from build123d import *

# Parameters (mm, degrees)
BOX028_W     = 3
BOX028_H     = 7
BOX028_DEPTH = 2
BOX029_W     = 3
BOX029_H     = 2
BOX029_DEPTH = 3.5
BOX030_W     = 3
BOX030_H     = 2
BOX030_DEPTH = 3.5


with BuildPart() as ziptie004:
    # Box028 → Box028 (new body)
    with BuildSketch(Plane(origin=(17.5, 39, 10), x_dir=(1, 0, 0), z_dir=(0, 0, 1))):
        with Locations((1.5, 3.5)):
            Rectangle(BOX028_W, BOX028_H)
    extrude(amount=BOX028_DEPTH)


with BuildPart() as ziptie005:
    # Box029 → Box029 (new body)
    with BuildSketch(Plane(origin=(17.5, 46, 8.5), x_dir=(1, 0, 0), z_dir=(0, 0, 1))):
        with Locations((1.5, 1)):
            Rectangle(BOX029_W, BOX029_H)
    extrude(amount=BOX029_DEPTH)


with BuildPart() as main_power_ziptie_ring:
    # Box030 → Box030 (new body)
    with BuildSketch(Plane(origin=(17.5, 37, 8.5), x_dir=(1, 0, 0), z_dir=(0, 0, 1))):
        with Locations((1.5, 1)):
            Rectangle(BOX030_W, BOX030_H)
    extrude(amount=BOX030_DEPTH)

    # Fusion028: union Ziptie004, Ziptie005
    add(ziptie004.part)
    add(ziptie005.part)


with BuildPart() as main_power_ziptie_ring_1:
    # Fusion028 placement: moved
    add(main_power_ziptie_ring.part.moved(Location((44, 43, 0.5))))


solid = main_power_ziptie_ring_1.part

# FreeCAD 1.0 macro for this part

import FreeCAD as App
import Part
import Sketcher

V = App.Vector
Q = App.Units.Quantity


def add_polygon(sketch, points):
    """Adds a closed chain of lines whose ends are joined by coincident constraints."""
    first, n = sketch.GeometryCount, len(points)
    for a, b in zip(points, points[1:] + points[:1]):
        sketch.addGeometry(Part.LineSegment(App.Vector(*a, 0), App.Vector(*b, 0)), False)
    for i in range(n):
        sketch.addConstraint(Sketcher.Constraint("Coincident", first + i, 2, first + (i + 1) % n, 1))

doc = App.newDocument("Part")
params = doc.addObject("Spreadsheet::Sheet", "Params")
for row, (alias, value) in enumerate([
    ("sketch1_width", "3 mm"),
    ("sketch1_height", "7 mm"),
    ("pad1_length", "2 mm"),
    ("sketch2_width", "3 mm"),
    ("sketch2_height", "2 mm"),
    ("pad2_length", "3.5 mm"),
    ("sketch3_width", "3 mm"),
    ("sketch3_height", "2 mm"),
    ("pad3_length", "3.5 mm"),
], start=1):
    params.set(f"A{row}", alias)
    params.set(f"B{row}", "=" + value)
    params.setAlias(f"B{row}", alias)

body = doc.addObject("PartDesign::Body", "Body")

# Sketch on XY plane
sketch1 = doc.addObject("Sketcher::SketchObject", "Sketch")
body.addObject(sketch1)
sketch1.AttachmentSupport = (doc.XY_Plane, [""])
sketch1.MapMode = "FlatFace"
sketch1.AttachmentOffset = App.Placement(V(0, 0, 10), App.Rotation())
add_polygon(sketch1, [(17.5, 46), (17.5, 39), (20.5, 39), (20.5, 46)])  # lines 0-3
sketch1.addConstraint([
    Sketcher.Constraint("Vertical", 0),
    Sketcher.Constraint("Horizontal", 1),
    Sketcher.Constraint("Vertical", 2),
    Sketcher.Constraint("Horizontal", 3),
    Sketcher.Constraint("DistanceX", 1, 1, 1, 2, Q("3 mm")),
    Sketcher.Constraint("DistanceY", 0, 2, 0, 1, Q("7 mm")),
    Sketcher.Constraint("DistanceY", -1, 1, 0, 2, Q("39 mm")),
    Sketcher.Constraint("DistanceX", -1, 1, 0, 2, Q("17.5 mm")),
])
sketch1.setExpression("Constraints[8]", "Params.sketch1_width")
sketch1.setExpression("Constraints[9]", "Params.sketch1_height")
pad1 = doc.addObject("PartDesign::Pad", "Pad")
body.addObject(pad1)
pad1.Profile = sketch1
pad1.setExpression("Length", "Params.pad1_length")
body2 = doc.addObject("PartDesign::Body", "Body001")

# Sketch on XY plane
sketch2 = doc.addObject("Sketcher::SketchObject", "Sketch001")
body2.addObject(sketch2)
sketch2.AttachmentSupport = (doc.getObject("XY_Plane001"), [""])
sketch2.MapMode = "FlatFace"
sketch2.AttachmentOffset = App.Placement(V(0, 0, 8.5), App.Rotation())
add_polygon(sketch2, [(17.5, 48), (17.5, 46), (20.5, 46), (20.5, 48)])  # lines 0-3
sketch2.addConstraint([
    Sketcher.Constraint("Vertical", 0),
    Sketcher.Constraint("Horizontal", 1),
    Sketcher.Constraint("Vertical", 2),
    Sketcher.Constraint("Horizontal", 3),
    Sketcher.Constraint("DistanceX", 1, 1, 1, 2, Q("3 mm")),
    Sketcher.Constraint("DistanceY", 0, 2, 0, 1, Q("2 mm")),
    Sketcher.Constraint("DistanceY", -1, 1, 0, 2, Q("46 mm")),
    Sketcher.Constraint("DistanceX", -1, 1, 0, 2, Q("17.5 mm")),
])
sketch2.setExpression("Constraints[8]", "Params.sketch2_width")
sketch2.setExpression("Constraints[9]", "Params.sketch2_height")
pad2 = doc.addObject("PartDesign::Pad", "Pad001")
body2.addObject(pad2)
pad2.Profile = sketch2
pad2.setExpression("Length", "Params.pad2_length")
body3 = doc.addObject("PartDesign::Body", "Body002")

# Sketch on XY plane
sketch3 = doc.addObject("Sketcher::SketchObject", "Sketch002")
body3.addObject(sketch3)
sketch3.AttachmentSupport = (doc.getObject("XY_Plane002"), [""])
sketch3.MapMode = "FlatFace"
sketch3.AttachmentOffset = App.Placement(V(0, 0, 8.5), App.Rotation())
add_polygon(sketch3, [(17.5, 39), (17.5, 37), (20.5, 37), (20.5, 39)])  # lines 0-3
sketch3.addConstraint([
    Sketcher.Constraint("Vertical", 0),
    Sketcher.Constraint("Horizontal", 1),
    Sketcher.Constraint("Vertical", 2),
    Sketcher.Constraint("Horizontal", 3),
    Sketcher.Constraint("DistanceX", 1, 1, 1, 2, Q("3 mm")),
    Sketcher.Constraint("DistanceY", 0, 2, 0, 1, Q("2 mm")),
    Sketcher.Constraint("DistanceY", -1, 1, 0, 2, Q("37 mm")),
    Sketcher.Constraint("DistanceX", -1, 1, 0, 2, Q("17.5 mm")),
])
sketch3.setExpression("Constraints[8]", "Params.sketch3_width")
sketch3.setExpression("Constraints[9]", "Params.sketch3_height")
pad3 = doc.addObject("PartDesign::Pad", "Pad002")
body3.addObject(pad3)
pad3.Profile = sketch3
pad3.setExpression("Length", "Params.pad3_length")
doc.recompute()

boolean = doc.addObject("PartDesign::Boolean", "Boolean")
body3.addObject(boolean)
boolean.Type = "Fuse"
boolean.addObjects([body])
doc.recompute()

boolean2 = doc.addObject("PartDesign::Boolean", "Boolean001")
body3.addObject(boolean2)
boolean2.Type = "Fuse"
boolean2.addObjects([body2])
body4 = doc.addObject("PartDesign::Body", "Body003")
doc.recompute()

body3.Placement = App.Placement(V(44, 43, 0.5), App.Rotation(V(0, 0, 1), 0))
boolean3 = doc.addObject("PartDesign::Boolean", "Boolean002")
body4.addObject(boolean3)
boolean3.Type = "Fuse"
boolean3.addObjects([body3])

doc.recompute()
